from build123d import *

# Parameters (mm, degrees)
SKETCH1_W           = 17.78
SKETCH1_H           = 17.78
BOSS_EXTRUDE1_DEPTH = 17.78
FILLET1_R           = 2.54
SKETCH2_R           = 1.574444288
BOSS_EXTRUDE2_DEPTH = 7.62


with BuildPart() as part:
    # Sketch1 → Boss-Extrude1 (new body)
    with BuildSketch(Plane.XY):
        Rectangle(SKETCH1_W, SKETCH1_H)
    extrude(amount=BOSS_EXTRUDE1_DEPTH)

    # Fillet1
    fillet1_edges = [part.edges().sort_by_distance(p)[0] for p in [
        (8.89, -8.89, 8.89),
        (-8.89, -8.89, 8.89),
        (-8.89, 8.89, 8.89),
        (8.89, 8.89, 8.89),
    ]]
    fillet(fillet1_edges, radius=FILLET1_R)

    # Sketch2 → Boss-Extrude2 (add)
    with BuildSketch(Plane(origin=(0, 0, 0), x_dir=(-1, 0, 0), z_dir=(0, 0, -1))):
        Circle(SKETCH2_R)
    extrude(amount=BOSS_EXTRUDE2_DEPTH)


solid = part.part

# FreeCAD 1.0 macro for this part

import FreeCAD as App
import Part
import Sketcher
Q = App.Units.Quantity


def edges_at(feature, points):
    """Names of the edges that pass closest to the given points."""
    edges = feature.Shape.Edges
    near = lambda p: min(range(len(edges)), key=lambda i: edges[i].distToShape(Part.Vertex(*p))[0])
    return sorted({f"Edge{near(p) + 1}" for p in points})

doc = App.newDocument("Part")
body = doc.addObject("PartDesign::Body", "Body")

sketch1 = doc.addObject("Sketcher::SketchObject", "Sketch")
body.addObject(sketch1)
sketch1.AttachmentSupport = (doc.XY_Plane, [""])
sketch1.MapMode = "FlatFace"
sketch1.addGeometry([
    Part.LineSegment(App.Vector(-9, 9, 0), App.Vector(-9, -9, 0)),
    Part.LineSegment(App.Vector(-9, -9, 0), App.Vector(9, -9, 0)),
    Part.LineSegment(App.Vector(9, -9, 0), App.Vector(9, 9, 0)),
    Part.LineSegment(App.Vector(9, 9, 0), App.Vector(-9, 9, 0)),
], False)
sketch1.addConstraint([
    Sketcher.Constraint("Coincident", 0, 2, 1, 1),
    Sketcher.Constraint("Coincident", 1, 2, 2, 1),
    Sketcher.Constraint("Coincident", 2, 2, 3, 1),
    Sketcher.Constraint("Coincident", 3, 2, 0, 1),
    Sketcher.Constraint("Vertical", 0),
    Sketcher.Constraint("Horizontal", 1),
    Sketcher.Constraint("Vertical", 2),
    Sketcher.Constraint("Horizontal", 3),
    Sketcher.Constraint("Symmetric", 0, 2, 2, 2, -1, 1),
    Sketcher.Constraint("Equal", 3, 0),
    Sketcher.Constraint("DistanceX", 1, 1, 1, 2, Q("0.7 in")),
])
pad1 = doc.addObject("PartDesign::Pad", "Pad")
body.addObject(pad1)
pad1.Profile = sketch1
pad1.Length = Q("0.7 in")
doc.recompute()

fillet = doc.addObject("PartDesign::Fillet", "Fillet")
body.addObject(fillet)
fillet.Base = (pad1, edges_at(pad1, [
    (8.89, -8.89, 8.89),
    (-8.89, -8.89, 8.89),
    (-8.89, 8.89, 8.89),
    (8.89, 8.89, 8.89),
]))
fillet.Radius = Q("0.1 in")

sketch2 = doc.addObject("Sketcher::SketchObject", "Sketch001")
body.addObject(sketch2)
sketch2.AttachmentSupport = (doc.XY_Plane, [""])
sketch2.MapMode = "FlatFace"
sketch2.addGeometry(Part.Circle(App.Vector(0, 0, 0), App.Vector(0, 0, 1), 1.6), False)
sketch2.addConstraint([
    Sketcher.Constraint("Coincident", 0, 3, -1, 1),
    Sketcher.Constraint("Diameter", 0, 3.148889),
])
pad2 = doc.addObject("PartDesign::Pad", "Pad001")
body.addObject(pad2)
pad2.Profile = sketch2
pad2.Length = Q("0.3 in")
pad2.Reversed = True

doc.recompute()
